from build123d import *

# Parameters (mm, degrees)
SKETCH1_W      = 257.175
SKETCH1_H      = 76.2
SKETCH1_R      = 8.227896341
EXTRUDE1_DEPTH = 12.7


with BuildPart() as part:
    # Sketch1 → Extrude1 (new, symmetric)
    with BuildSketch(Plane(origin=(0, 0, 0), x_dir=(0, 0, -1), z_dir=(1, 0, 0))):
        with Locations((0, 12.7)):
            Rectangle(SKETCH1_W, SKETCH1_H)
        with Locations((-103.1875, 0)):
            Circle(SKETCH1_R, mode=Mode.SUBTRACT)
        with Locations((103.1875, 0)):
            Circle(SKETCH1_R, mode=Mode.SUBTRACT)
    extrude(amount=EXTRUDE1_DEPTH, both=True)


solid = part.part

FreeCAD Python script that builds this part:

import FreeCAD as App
import Part
import Sketcher

V = App.Vector
Q = App.Units.Quantity


def add_polygon(sketch, points):
    """Adds a closed chain of lines whose ends are joined by coincident constraints."""
    first, n = sketch.GeometryCount, len(points)
    for a, b in zip(points, points[1:] + points[:1]):
        sketch.addGeometry(Part.LineSegment(App.Vector(*a, 0), App.Vector(*b, 0)), False)
    for i in range(n):
        sketch.addConstraint(Sketcher.Constraint("Coincident", first + i, 2, first + (i + 1) % n, 1))

doc = App.newDocument("Part")
body = doc.addObject("PartDesign::Body", "Body")

# Sketch on YZ plane
sketch1 = body.newObject("Sketcher::SketchObject", "Sketch")
sketch1.AttachmentSupport = (doc.getObject("YZ_Plane"), [""])
sketch1.MapMode = "FlatFace"
add_polygon(sketch1, [(51, 129), (-25, 129), (-25, -129), (51, -129)])  # lines 0-3
sketch1.addGeometry(Part.Circle(V(0, 103, 0), V(0, 0, 1), 8), False)  # 4
sketch1.addGeometry(Part.Circle(V(0, -103, 0), V(0, 0, 1), 8), False)  # 5
sketch1.addConstraint([
    Sketcher.Constraint("Horizontal", 0),
    Sketcher.Constraint("Vertical", 1),
    Sketcher.Constraint("Horizontal", 2),
    Sketcher.Constraint("Vertical", 3),
    Sketcher.Constraint("Equal", 4, 5),
    Sketcher.Constraint("Symmetric", 4, 3, 5, 3, -1, 1),
    Sketcher.Constraint("PointOnObject", 4, 3, -2),
    Sketcher.Constraint("DistanceX", 0, 2, 0, 1, Q("3 in")),
    Sketcher.Constraint("DistanceX", 0, 2, -1, 1, Q("1 in")),
    Sketcher.Constraint("DistanceY", 4, 3, 0, 2, Q("1 in")),
    Sketcher.Constraint("DistanceY", 1, 2, 5, 3, Q("1 in")),
    Sketcher.Constraint("DistanceY", 1, 2, 1, 1, Q("10.125 in")),
    Sketcher.Constraint("Diameter", 4, Q("16.455793 mm")),
])
pad1 = body.newObject("PartDesign::Pad", "Pad")
pad1.Profile = sketch1
pad1.Length = Q("1 in")
pad1.Midplane = True

doc.recompute()
